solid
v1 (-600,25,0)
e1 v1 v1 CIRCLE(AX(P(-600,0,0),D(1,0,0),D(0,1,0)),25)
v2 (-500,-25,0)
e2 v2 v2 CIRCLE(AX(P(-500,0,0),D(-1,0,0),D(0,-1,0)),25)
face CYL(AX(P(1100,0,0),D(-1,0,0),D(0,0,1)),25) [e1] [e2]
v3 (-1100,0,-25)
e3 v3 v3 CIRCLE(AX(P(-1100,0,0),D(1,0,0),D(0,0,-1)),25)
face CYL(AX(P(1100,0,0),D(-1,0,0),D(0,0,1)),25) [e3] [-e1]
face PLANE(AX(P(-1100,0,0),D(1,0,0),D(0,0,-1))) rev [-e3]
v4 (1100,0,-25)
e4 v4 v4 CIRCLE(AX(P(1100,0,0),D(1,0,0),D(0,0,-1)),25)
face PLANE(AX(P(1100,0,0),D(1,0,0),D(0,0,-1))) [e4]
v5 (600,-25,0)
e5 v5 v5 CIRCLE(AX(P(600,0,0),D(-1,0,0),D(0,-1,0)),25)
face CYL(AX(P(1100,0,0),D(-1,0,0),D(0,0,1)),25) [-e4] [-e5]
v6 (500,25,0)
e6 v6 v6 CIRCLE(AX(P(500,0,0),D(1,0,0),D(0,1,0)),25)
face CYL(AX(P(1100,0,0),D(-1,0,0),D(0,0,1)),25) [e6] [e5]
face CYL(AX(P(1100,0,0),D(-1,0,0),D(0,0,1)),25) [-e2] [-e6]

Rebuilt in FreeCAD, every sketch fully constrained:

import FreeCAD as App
import Part
import Sketcher

V = App.Vector

doc = App.newDocument("Part")
body = doc.addObject("PartDesign::Body", "Body")

# Sketch on YZ plane
sketch1 = body.newObject("Sketcher::SketchObject", "Sketch")
sketch1.AttachmentSupport = (doc.getObject("YZ_Plane"), [""])
sketch1.MapMode = "FlatFace"
sketch1.addGeometry(Part.Circle(V(0, 0, 0), V(0, 0, 1), 25), False)
sketch1.addConstraint([
    Sketcher.Constraint("Coincident", 0, 3, -1, 1),
    Sketcher.Constraint("Diameter", 0, 50.0),
])
pad1 = body.newObject("PartDesign::Pad", "Pad")
pad1.Profile = sketch1
pad1.Length = 2200
pad1.Midplane = True

doc.recompute()
